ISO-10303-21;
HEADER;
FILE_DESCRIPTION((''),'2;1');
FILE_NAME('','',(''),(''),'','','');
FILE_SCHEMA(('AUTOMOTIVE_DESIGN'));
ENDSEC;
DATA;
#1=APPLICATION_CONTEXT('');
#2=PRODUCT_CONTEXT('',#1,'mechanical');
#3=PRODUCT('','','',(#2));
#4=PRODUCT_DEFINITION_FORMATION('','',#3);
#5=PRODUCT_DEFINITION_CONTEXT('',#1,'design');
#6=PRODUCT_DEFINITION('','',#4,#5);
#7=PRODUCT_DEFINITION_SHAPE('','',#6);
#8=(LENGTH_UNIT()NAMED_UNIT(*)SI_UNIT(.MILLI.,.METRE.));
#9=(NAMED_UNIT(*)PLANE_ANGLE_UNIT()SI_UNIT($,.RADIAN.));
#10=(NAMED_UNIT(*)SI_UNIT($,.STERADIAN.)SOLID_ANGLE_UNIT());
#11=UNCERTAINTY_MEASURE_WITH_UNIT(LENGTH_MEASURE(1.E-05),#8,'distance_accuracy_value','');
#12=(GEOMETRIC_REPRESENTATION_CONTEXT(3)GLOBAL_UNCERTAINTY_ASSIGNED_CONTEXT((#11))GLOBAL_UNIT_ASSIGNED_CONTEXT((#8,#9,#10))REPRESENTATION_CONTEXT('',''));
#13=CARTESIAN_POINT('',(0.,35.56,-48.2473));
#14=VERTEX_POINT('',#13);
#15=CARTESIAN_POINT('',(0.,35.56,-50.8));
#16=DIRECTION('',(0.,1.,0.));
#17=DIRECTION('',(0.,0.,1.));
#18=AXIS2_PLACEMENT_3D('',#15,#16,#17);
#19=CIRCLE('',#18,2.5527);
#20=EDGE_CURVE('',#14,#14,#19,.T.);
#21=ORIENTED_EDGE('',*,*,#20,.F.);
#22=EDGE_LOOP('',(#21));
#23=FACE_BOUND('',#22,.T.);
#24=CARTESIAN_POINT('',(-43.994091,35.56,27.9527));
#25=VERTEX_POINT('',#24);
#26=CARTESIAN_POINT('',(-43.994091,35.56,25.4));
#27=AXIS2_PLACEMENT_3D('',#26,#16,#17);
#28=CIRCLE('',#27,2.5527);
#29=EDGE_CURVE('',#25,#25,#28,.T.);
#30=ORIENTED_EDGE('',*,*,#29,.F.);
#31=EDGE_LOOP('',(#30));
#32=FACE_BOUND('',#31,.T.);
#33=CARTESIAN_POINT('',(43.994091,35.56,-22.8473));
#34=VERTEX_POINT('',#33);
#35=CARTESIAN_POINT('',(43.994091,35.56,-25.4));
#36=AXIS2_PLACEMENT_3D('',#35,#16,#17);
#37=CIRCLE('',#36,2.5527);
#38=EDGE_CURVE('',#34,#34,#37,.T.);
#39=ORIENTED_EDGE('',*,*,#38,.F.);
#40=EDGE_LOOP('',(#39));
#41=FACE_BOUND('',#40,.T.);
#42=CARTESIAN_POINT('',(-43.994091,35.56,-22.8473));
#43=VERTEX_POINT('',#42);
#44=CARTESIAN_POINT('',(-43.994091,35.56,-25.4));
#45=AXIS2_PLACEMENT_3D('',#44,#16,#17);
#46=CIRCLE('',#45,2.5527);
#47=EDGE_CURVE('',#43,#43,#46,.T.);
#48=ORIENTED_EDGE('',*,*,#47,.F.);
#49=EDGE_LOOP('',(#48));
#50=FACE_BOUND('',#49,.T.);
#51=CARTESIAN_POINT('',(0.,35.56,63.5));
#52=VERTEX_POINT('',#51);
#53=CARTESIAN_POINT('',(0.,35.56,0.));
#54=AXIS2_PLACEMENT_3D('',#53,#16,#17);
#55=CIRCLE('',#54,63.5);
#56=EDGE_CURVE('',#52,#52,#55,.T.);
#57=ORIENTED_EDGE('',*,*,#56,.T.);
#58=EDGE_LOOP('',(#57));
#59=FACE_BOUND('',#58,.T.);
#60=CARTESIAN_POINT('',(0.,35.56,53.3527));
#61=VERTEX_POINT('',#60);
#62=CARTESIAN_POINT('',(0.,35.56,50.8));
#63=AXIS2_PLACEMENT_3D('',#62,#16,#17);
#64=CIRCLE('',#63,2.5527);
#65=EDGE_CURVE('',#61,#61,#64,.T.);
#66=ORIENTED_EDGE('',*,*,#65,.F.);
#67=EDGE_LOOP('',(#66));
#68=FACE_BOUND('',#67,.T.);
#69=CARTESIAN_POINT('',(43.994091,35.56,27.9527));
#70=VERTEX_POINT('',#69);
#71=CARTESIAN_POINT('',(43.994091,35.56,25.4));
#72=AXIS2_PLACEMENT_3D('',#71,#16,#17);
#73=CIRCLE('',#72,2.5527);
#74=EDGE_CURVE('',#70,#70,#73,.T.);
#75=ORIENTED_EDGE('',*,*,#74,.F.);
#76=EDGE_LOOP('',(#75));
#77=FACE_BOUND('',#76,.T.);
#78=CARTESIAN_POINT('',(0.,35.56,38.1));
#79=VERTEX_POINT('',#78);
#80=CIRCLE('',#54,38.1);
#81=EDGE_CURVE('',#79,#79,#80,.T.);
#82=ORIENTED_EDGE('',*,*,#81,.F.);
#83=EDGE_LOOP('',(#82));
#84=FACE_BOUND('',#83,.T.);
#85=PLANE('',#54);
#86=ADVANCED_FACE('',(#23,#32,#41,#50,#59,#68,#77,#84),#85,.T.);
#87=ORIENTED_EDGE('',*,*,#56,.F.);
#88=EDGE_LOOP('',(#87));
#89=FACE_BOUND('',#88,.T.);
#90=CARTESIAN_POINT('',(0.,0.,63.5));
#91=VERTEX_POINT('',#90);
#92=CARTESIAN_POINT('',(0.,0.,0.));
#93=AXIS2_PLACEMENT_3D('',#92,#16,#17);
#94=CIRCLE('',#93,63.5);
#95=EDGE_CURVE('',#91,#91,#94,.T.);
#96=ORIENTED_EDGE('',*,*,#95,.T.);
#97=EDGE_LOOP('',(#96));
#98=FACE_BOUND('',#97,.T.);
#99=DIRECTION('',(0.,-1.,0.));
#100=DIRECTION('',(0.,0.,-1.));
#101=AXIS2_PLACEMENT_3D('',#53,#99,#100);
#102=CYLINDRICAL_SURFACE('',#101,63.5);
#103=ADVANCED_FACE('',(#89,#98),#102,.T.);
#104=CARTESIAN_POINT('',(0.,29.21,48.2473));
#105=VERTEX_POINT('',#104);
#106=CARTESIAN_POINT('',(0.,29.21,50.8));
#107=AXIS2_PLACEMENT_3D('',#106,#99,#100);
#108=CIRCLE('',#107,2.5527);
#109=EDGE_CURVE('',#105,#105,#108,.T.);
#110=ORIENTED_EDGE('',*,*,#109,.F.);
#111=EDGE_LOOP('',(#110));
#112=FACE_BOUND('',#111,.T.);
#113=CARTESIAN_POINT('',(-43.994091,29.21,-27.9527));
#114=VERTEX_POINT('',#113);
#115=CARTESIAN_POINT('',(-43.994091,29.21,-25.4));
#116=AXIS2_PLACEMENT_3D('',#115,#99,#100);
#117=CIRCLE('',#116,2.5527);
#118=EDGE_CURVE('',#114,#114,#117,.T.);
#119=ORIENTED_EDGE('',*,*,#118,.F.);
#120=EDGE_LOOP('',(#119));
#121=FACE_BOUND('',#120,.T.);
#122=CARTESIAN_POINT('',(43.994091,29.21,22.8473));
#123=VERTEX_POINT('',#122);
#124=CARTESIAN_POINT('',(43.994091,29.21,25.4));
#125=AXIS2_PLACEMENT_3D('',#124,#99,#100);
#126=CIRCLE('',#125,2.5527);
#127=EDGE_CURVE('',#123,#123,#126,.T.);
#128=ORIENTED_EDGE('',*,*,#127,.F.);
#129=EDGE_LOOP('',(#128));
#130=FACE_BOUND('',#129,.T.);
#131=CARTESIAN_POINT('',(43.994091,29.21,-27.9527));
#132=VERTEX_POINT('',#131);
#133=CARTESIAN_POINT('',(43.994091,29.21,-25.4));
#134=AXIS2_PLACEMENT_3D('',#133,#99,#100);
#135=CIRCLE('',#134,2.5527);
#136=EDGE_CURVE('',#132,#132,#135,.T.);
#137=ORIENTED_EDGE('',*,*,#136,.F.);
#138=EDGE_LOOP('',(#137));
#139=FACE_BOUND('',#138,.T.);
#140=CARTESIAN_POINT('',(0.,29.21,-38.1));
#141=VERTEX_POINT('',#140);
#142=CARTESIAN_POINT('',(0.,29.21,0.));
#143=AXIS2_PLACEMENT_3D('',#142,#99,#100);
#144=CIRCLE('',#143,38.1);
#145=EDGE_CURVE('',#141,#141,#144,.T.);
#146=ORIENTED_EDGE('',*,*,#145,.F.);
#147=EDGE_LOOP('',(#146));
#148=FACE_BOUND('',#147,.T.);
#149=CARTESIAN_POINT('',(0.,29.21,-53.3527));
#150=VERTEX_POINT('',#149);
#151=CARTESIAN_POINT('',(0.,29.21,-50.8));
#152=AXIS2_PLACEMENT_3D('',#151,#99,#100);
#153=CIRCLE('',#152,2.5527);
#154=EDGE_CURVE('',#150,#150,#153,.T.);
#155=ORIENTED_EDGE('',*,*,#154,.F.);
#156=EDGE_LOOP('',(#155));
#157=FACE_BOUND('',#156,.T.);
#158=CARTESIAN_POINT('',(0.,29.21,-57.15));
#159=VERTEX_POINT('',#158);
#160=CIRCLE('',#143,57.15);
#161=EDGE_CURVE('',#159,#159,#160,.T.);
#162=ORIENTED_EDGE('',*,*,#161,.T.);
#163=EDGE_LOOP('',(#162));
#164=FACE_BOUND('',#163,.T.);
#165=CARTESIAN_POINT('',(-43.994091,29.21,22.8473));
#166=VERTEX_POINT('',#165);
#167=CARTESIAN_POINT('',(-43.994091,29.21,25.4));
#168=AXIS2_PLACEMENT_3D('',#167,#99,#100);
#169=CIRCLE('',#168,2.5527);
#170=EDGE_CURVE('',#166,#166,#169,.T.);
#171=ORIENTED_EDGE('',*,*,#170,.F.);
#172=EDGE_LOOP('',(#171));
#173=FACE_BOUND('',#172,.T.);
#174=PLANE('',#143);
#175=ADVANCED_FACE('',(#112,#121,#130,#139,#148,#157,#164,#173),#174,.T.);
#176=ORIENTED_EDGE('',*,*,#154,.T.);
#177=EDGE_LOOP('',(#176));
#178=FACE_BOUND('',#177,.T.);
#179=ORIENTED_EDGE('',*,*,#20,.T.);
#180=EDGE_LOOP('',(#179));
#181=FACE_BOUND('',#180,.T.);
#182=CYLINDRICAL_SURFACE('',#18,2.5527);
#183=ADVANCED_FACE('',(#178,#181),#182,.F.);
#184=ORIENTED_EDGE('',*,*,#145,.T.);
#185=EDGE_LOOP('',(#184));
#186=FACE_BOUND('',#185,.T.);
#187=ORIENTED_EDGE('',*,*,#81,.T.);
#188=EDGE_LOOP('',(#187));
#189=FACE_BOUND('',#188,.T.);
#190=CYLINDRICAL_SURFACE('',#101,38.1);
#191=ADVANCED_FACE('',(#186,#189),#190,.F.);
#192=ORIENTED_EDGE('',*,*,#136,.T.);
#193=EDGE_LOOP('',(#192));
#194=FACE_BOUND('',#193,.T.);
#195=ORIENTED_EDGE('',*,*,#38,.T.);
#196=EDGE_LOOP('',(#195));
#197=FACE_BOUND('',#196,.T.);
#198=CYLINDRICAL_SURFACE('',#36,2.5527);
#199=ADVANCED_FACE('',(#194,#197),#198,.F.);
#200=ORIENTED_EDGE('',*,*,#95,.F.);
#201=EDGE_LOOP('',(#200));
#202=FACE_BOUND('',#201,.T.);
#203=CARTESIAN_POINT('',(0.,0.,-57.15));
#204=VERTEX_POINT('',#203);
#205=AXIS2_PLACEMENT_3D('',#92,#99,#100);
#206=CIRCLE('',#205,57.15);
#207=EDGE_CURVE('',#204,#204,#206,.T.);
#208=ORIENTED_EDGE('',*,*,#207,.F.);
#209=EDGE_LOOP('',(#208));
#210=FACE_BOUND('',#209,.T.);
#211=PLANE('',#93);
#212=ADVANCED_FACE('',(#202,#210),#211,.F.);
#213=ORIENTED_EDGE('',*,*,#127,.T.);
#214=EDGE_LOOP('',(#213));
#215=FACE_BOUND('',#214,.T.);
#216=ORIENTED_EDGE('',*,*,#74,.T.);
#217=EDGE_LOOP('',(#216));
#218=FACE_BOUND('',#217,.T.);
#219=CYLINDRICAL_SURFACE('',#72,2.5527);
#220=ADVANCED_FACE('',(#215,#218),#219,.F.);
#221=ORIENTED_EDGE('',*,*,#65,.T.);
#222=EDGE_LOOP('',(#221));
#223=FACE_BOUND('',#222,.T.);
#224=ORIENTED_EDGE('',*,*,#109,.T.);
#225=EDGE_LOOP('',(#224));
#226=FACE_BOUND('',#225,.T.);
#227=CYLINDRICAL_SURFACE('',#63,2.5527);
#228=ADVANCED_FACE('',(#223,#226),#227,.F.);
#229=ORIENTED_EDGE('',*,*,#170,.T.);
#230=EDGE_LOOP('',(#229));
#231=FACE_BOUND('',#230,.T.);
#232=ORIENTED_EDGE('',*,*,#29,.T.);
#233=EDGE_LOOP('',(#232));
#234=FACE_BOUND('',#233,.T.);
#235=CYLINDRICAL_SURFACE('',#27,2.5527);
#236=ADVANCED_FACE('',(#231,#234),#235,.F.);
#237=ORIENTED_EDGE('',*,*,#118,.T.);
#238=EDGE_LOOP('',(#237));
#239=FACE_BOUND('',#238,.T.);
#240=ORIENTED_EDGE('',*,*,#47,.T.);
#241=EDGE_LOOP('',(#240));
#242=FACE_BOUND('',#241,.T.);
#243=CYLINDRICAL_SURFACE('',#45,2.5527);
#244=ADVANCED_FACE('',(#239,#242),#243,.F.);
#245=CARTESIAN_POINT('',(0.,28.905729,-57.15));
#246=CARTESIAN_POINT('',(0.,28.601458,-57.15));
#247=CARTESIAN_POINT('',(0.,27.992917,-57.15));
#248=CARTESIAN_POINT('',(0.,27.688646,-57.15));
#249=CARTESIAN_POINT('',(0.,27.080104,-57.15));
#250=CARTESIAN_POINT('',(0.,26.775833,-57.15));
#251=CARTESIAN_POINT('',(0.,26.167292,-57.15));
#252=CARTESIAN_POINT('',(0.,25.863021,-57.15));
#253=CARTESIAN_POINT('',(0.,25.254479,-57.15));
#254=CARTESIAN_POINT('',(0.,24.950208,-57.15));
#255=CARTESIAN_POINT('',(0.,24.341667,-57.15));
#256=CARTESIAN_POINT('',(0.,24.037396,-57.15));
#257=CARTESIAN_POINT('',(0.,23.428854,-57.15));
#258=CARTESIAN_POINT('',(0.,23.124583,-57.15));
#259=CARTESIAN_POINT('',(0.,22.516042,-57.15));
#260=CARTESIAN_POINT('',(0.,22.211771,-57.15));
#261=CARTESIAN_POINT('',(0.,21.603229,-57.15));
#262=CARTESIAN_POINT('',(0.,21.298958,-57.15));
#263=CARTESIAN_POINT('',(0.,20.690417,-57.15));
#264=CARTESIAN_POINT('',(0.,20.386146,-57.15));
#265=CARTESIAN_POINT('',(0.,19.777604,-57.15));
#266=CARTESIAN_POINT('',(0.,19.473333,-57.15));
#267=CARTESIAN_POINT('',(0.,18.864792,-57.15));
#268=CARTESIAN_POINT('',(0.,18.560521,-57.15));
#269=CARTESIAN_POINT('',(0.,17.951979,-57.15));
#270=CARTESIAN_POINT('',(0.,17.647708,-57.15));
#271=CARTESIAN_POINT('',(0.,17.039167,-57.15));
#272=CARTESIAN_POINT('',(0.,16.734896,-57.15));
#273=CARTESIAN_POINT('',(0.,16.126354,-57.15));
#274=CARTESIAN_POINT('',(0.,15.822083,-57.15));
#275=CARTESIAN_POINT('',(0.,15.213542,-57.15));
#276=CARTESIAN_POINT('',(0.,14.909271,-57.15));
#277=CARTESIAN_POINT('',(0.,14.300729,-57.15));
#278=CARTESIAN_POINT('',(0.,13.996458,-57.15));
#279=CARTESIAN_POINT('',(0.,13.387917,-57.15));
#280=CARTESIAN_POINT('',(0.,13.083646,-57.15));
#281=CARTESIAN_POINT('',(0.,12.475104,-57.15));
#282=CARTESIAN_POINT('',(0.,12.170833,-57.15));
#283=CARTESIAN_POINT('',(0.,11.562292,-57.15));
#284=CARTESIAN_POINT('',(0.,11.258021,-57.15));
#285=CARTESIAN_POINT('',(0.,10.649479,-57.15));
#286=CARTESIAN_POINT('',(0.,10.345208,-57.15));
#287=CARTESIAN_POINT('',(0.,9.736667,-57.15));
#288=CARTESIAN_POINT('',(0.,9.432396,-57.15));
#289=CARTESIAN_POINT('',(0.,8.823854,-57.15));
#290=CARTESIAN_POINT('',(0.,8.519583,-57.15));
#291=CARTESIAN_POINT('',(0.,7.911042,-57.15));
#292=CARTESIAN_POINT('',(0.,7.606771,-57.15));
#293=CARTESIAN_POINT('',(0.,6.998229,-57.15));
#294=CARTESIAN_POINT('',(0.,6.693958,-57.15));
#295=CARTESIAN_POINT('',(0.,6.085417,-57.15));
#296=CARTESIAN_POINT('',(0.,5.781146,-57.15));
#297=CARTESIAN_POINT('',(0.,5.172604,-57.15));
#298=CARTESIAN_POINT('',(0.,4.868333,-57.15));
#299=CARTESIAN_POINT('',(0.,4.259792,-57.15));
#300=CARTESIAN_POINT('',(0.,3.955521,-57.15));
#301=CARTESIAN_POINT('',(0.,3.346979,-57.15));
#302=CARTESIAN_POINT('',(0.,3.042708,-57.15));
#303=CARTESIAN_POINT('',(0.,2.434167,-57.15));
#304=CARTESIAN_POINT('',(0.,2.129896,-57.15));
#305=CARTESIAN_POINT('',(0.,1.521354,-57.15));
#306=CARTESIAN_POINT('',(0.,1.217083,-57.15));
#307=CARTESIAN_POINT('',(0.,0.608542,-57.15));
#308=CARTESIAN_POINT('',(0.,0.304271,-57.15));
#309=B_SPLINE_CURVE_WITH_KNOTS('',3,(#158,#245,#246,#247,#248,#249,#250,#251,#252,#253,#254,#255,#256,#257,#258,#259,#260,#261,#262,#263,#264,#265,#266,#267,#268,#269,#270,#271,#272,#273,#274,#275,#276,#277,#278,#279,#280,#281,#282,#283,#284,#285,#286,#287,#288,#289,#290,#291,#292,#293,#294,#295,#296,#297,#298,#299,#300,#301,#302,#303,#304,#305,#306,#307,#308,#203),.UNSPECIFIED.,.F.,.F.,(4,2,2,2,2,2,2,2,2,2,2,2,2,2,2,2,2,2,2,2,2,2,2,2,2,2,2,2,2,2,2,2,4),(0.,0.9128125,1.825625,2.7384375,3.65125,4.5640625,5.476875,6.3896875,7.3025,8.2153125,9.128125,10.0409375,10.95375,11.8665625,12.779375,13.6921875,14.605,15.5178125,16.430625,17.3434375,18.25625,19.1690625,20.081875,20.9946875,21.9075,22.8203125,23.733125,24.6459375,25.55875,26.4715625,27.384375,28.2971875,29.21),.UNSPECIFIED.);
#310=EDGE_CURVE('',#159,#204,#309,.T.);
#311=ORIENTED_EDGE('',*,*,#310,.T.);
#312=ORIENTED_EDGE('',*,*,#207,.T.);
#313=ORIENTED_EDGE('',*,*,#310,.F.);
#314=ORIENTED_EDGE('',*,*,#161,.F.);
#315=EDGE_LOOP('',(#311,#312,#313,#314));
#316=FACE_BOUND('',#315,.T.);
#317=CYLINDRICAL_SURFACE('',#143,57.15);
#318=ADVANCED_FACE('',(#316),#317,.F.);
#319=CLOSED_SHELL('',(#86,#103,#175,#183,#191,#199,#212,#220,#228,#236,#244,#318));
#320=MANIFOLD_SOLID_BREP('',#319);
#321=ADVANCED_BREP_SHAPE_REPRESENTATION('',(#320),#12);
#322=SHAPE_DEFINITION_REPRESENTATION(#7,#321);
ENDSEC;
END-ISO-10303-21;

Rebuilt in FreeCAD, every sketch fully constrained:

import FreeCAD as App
import Part
import Sketcher
Q = App.Units.Quantity

doc = App.newDocument("Part")
body = doc.addObject("PartDesign::Body", "Body")

sketch1 = body.newObject("Sketcher::SketchObject", "Sketch")
sketch1.AttachmentSupport = (doc.getObject("XZ_Plane"), [""])
sketch1.MapMode = "FlatFace"
sketch1.addGeometry([
    Part.Circle(App.Vector(0, 0, 0), App.Vector(0, 0, 1), 63.5),
    Part.Circle(App.Vector(0, 0, 0), App.Vector(0, 0, 1), 38.1),
], False)
sketch1.addConstraint([
    Sketcher.Constraint("Coincident", 0, 3, -1, 1),
    Sketcher.Constraint("Coincident", 1, 3, -1, 1),
    Sketcher.Constraint("Diameter", 0, Q("5 in")),
    Sketcher.Constraint("Diameter", 1, Q("3 in")),
])
pad1 = body.newObject("PartDesign::Pad", "Pad")
pad1.Profile = sketch1
pad1.Length = Q("1.4 in")
pad1.Reversed = True

sketch2 = body.newObject("Sketcher::SketchObject", "Sketch001")
sketch2.AttachmentSupport = (doc.getObject("XZ_Plane"), [""])
sketch2.MapMode = "FlatFace"
sketch2.addGeometry(Part.Circle(App.Vector(0, 0, 0), App.Vector(0, 0, 1), 57.15), False)
sketch2.addConstraint([
    Sketcher.Constraint("Coincident", 0, 3, -1, 1),
    Sketcher.Constraint("Diameter", 0, Q("4.5 in")),
])
pocket1 = body.newObject("PartDesign::Pocket", "Pocket")
pocket1.Profile = sketch2
pocket1.Length = Q("1.15 in")

sketch3 = body.newObject("Sketcher::SketchObject", "Sketch002")
sketch3.AttachmentSupport = (doc.getObject("XZ_Plane"), [""])
sketch3.MapMode = "FlatFace"
sketch3.AttachmentOffset = App.Placement(App.Vector(0, 0, -1.4 * 25.4), App.Rotation())
sketch3.addGeometry(Part.Circle(App.Vector(0, -50.8, 0), App.Vector(0, 0, 1), 2.5527), False)
sketch3.addConstraint([
    Sketcher.Constraint("PointOnObject", 0, 3, -2),
    Sketcher.Constraint("Diameter", 0, Q("0.201 in")),
    Sketcher.Constraint("DistanceY", 0, 3, -1, 1, Q("2 in")),
])
doc.recompute()
hole = body.newObject("PartDesign::Hole", "Hole")
hole.Profile = sketch3
hole.ThreadType = "None"
hole.Diameter = Q("0.201 in")
hole.DepthType = "ThroughAll"
hole.Reversed = True
doc.recompute()

polarpattern = body.newObject("PartDesign::PolarPattern", "PolarPattern")
polarpattern.Originals = [hole]
polarpattern.Axis = (doc.getObject("Y_Axis"), [""])
polarpattern.Angle = 360
polarpattern.Occurrences = 6
body.Tip = polarpattern

doc.recompute()
